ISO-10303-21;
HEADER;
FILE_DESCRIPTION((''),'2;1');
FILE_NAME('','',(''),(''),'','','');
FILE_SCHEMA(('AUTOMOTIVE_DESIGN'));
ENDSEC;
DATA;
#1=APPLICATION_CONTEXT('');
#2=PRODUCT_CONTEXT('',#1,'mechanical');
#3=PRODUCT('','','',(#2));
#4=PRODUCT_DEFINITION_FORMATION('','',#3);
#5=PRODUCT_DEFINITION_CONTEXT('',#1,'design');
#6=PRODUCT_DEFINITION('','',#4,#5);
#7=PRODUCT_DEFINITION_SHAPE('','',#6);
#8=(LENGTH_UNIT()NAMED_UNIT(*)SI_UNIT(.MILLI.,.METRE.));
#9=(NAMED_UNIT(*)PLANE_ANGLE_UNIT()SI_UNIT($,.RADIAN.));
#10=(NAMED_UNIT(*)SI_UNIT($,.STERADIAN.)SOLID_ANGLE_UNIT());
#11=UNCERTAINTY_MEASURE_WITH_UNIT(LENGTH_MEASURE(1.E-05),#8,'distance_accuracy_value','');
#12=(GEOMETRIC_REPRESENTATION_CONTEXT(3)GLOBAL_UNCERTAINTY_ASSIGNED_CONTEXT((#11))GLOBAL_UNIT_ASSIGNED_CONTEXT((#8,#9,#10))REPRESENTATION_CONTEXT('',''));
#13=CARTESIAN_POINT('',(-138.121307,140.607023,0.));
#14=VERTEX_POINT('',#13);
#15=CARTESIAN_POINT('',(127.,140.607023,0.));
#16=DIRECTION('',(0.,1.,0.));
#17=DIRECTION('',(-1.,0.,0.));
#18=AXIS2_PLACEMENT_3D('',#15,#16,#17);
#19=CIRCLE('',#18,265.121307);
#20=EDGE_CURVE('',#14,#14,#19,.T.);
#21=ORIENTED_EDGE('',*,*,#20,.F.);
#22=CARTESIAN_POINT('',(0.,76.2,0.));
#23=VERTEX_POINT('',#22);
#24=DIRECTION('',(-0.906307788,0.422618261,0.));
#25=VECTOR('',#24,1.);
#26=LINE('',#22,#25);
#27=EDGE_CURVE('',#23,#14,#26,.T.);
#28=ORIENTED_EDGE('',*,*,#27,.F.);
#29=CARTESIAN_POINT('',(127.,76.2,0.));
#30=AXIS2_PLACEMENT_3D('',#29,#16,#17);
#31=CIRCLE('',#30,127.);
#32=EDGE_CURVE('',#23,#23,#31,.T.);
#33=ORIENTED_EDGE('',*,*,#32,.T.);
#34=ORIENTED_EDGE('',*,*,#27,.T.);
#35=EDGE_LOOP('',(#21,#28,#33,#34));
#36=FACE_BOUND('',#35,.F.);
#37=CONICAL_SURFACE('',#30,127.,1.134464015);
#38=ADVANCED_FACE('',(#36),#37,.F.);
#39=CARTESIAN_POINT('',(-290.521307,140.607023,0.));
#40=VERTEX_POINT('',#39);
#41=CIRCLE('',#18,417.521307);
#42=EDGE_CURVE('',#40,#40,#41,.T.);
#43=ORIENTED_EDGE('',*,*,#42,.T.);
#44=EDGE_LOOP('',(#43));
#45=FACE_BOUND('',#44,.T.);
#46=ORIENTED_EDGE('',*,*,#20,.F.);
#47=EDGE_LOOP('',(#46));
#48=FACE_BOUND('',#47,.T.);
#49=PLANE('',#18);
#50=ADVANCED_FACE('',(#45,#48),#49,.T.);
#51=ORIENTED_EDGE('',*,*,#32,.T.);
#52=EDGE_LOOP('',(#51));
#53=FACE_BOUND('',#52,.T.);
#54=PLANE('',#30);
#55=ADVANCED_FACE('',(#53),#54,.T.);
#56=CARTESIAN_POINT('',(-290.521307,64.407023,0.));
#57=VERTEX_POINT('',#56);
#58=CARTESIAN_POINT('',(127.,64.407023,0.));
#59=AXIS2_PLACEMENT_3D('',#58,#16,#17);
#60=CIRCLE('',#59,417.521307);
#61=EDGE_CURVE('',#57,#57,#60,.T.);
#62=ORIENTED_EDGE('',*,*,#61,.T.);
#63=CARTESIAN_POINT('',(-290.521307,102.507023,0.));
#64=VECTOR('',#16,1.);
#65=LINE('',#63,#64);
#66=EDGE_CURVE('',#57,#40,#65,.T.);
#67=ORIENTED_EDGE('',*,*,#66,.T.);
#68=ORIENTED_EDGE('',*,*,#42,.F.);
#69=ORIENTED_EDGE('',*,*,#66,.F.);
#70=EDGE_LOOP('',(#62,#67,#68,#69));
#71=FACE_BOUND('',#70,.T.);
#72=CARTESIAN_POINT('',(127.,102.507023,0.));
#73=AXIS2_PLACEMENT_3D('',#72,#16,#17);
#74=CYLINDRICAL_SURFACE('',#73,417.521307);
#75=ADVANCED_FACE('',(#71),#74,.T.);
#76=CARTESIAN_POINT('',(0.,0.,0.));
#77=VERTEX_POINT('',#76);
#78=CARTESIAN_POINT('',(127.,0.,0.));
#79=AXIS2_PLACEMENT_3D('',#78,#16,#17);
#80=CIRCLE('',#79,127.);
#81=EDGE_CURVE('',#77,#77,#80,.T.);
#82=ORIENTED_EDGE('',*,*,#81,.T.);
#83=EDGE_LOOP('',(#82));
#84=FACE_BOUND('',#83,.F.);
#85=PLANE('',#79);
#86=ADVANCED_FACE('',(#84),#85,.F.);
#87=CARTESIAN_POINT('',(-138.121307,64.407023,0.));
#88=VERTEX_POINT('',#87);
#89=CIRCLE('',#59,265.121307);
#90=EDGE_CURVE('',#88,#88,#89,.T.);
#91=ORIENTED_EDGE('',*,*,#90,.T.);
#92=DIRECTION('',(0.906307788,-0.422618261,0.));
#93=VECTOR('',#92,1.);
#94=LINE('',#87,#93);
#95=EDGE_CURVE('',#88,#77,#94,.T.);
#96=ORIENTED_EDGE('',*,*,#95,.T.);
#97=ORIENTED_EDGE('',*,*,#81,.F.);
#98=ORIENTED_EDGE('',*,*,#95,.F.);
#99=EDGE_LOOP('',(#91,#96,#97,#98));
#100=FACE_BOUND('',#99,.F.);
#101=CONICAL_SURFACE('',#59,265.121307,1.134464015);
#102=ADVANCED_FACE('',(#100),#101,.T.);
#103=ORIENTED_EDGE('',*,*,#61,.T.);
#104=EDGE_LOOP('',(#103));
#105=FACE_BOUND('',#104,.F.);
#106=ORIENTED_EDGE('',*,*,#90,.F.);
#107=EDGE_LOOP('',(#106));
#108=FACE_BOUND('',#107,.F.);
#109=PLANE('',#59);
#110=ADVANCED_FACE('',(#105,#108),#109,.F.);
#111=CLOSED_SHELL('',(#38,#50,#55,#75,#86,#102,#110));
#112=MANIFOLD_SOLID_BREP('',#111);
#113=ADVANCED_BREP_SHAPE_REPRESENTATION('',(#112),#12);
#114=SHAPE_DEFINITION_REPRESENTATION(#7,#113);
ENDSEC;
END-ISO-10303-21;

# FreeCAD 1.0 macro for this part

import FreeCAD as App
import Part
import Sketcher
Q = App.Units.Quantity


def add_polygon(sketch, points):
    """Adds a closed chain of lines whose ends are joined by coincident constraints."""
    first, n = sketch.GeometryCount, len(points)
    for a, b in zip(points, points[1:] + points[:1]):
        sketch.addGeometry(Part.LineSegment(App.Vector(*a, 0), App.Vector(*b, 0)), False)
    for i in range(n):
        sketch.addConstraint(Sketcher.Constraint("Coincident", first + i, 2, first + (i + 1) % n, 1))

doc = App.newDocument("Part")
body = doc.addObject("PartDesign::Body", "Body")

# Sketch on XY plane
sketch1 = body.newObject("Sketcher::SketchObject", "Sketch")
sketch1.AttachmentSupport = (doc.getObject("XY_Plane"), [""])
sketch1.MapMode = "FlatFace"
add_polygon(sketch1, [(-291, 141), (-291, 64), (-138, 64), (0, 0), (127, 0), (127, 76), (0, 76), (-138, 141)])  # lines 0-7
sketch1.addGeometry(Part.LineSegment(App.Vector(127, 0, 0), App.Vector(127, 141, 0)), True)  # axis
sketch1.addConstraint(Sketcher.Constraint("Vertical", 0))
sketch1.addConstraint(Sketcher.Constraint("Horizontal", 1))
sketch1.addConstraint(Sketcher.Constraint("Horizontal", 3))
sketch1.addConstraint(Sketcher.Constraint("Vertical", 4))
sketch1.addConstraint(Sketcher.Constraint("Horizontal", 5))
sketch1.addConstraint(Sketcher.Constraint("Horizontal", 7))
sketch1.addConstraint(Sketcher.Constraint("Vertical", 8))
sketch1.addConstraint(Sketcher.Constraint("Coincident", 2, 2, -1, 1))
sketch1.addConstraint(Sketcher.Constraint("Coincident", 8, 1, 3, 2))
sketch1.addConstraint(Sketcher.Constraint("PointOnObject", 5, 2, -2))
sketch1.addConstraint(Sketcher.Constraint("Parallel", 2, 6))
sketch1.addConstraint(Sketcher.Constraint("Horizontal", 7, 2, 8, 2))
sketch1.addConstraint(Sketcher.Constraint("Vertical", 1, 2, 6, 2))
sketch1.addConstraint(Sketcher.Constraint("DistanceX", 1, 1, 1, 2, Q("6 in")))
sketch1.addConstraint(Sketcher.Constraint("DistanceX", 3, 1, 3, 2, Q("5 in")))
sketch1.addConstraint(Sketcher.Constraint("DistanceY", 0, 2, 0, 1, Q("3 in")))
sketch1.addConstraint(Sketcher.Constraint("Distance", 2, Q("6 in")))
sketch1.addConstraint(Sketcher.Constraint("Angle", 2, Q("-25 deg")))
revolution = body.newObject("PartDesign::Revolution", "Revolution")
revolution.Profile = sketch1
revolution.ReferenceAxis = (sketch1, ["Axis0"])
revolution.Angle = 360

doc.recompute()
